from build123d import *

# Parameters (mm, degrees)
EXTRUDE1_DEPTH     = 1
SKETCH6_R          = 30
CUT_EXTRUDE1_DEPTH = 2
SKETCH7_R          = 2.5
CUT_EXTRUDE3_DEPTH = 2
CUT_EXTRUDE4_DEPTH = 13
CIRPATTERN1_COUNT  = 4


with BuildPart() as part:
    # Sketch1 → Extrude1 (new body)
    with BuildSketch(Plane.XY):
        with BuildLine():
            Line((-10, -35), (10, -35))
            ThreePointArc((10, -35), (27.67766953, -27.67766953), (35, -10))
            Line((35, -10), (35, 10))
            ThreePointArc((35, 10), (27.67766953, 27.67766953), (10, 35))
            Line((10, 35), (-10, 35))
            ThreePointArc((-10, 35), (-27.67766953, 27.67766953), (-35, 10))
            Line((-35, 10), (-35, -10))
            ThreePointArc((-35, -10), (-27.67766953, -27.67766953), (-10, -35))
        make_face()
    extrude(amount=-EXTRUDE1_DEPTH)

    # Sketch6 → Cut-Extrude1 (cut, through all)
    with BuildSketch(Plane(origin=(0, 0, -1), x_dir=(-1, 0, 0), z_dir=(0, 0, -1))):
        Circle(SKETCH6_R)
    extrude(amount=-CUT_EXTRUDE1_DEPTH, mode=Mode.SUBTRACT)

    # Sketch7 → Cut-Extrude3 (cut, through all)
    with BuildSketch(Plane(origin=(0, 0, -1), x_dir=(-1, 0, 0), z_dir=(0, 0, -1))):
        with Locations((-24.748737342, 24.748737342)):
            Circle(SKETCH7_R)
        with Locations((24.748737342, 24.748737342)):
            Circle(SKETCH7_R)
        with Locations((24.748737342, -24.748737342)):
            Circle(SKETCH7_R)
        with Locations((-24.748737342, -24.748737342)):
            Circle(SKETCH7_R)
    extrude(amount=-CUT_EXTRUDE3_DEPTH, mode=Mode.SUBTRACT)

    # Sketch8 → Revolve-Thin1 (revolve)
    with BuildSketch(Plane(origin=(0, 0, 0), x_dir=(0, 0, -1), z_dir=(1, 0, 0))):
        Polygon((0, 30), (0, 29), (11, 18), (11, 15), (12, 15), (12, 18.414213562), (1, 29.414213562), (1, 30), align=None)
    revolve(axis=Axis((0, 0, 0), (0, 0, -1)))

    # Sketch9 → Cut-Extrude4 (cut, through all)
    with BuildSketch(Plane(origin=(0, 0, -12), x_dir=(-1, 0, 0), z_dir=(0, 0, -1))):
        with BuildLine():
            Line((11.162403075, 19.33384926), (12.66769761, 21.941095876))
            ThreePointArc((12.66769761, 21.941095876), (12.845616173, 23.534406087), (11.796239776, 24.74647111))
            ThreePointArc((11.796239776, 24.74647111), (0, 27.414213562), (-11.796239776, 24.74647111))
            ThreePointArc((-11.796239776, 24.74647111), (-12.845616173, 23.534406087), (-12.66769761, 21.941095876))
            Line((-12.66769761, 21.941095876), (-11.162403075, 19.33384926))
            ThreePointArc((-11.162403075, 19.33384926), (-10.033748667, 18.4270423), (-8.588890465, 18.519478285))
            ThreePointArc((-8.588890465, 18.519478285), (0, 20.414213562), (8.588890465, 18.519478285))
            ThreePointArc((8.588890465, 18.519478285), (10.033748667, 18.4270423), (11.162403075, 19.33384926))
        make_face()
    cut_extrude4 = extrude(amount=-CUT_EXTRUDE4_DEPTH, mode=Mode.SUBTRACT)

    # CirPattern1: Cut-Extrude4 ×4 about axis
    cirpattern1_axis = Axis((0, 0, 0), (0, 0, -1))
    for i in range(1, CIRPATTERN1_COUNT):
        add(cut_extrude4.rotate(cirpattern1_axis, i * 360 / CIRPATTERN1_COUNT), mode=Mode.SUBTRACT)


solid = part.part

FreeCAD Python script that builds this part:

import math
import FreeCAD as App
import Part
import Sketcher
Q = App.Units.Quantity

doc = App.newDocument("Part")
body = doc.addObject("PartDesign::Body", "Body")

# Sketch on XY plane
sketch1 = body.newObject("Sketcher::SketchObject", "Sketch")
sketch1.AttachmentSupport = (doc.getObject("XY_Plane"), [""])
sketch1.MapMode = "FlatFace"
sketch1.addGeometry([
    Part.LineSegment(App.Vector(-10, -35, 0), App.Vector(10, -35, 0)),  # 0
    Part.ArcOfCircle(Part.Circle(App.Vector(10, -10, 0), App.Vector(0, 0, 1), 25), math.radians(-90), math.radians(0)),  # 1
    Part.LineSegment(App.Vector(35, -10, 0), App.Vector(35, 10, 0)),  # 2
    Part.ArcOfCircle(Part.Circle(App.Vector(10, 10, 0), App.Vector(0, 0, 1), 25), math.radians(0), math.radians(90)),  # 3
    Part.LineSegment(App.Vector(10, 35, 0), App.Vector(-10, 35, 0)),  # 4
    Part.ArcOfCircle(Part.Circle(App.Vector(-10, 10, 0), App.Vector(0, 0, 1), 25), math.radians(90), math.radians(180)),  # 5
    Part.LineSegment(App.Vector(-35, 10, 0), App.Vector(-35, -10, 0)),  # 6
    Part.ArcOfCircle(Part.Circle(App.Vector(-10, -10, 0), App.Vector(0, 0, 1), 25), math.radians(180), math.radians(270)),  # 7
], False)
sketch1.addConstraint([
    Sketcher.Constraint("Tangent", 0, 2, 1, 1),
    Sketcher.Constraint("Tangent", 1, 2, 2, 1),
    Sketcher.Constraint("Tangent", 2, 2, 3, 1),
    Sketcher.Constraint("Tangent", 3, 2, 4, 1),
    Sketcher.Constraint("Tangent", 4, 2, 5, 1),
    Sketcher.Constraint("Tangent", 5, 2, 6, 1),
    Sketcher.Constraint("Tangent", 6, 2, 7, 1),
    Sketcher.Constraint("Tangent", 7, 2, 0, 1),
    Sketcher.Constraint("Horizontal", 0),
    Sketcher.Constraint("Vertical", 2),
    Sketcher.Constraint("Horizontal", 4),
    Sketcher.Constraint("Vertical", 6),
    Sketcher.Constraint("Equal", 1, 3),
    Sketcher.Constraint("Equal", 3, 5),
    Sketcher.Constraint("Equal", 5, 7),
    Sketcher.Constraint("Symmetric", 1, 3, 5, 3, -1, 1),
    Sketcher.Constraint("Equal", 4, 2),
    Sketcher.Constraint("Radius", 1, 25.0),
    Sketcher.Constraint("DistanceX", 0, 1, 0, 2, 20.0),
])
pad1 = body.newObject("PartDesign::Pad", "Pad")
pad1.Profile = sketch1
pad1.Length = 1
pad1.Reversed = True

# Sketch on XY plane
sketch2 = body.newObject("Sketcher::SketchObject", "Sketch001")
sketch2.AttachmentSupport = (doc.getObject("XY_Plane"), [""])
sketch2.MapMode = "FlatFace"
sketch2.AttachmentOffset = App.Placement(App.Vector(0, 0, -1), App.Rotation())
sketch2.addGeometry(Part.Circle(App.Vector(0, 0, 0), App.Vector(0, 0, 1), 30), False)
sketch2.addConstraint([
    Sketcher.Constraint("Coincident", 0, 3, -1, 1),
    Sketcher.Constraint("Diameter", 0, 60.0),
])
pocket1 = body.newObject("PartDesign::Pocket", "Pocket")
pocket1.Profile = sketch2
pocket1.Type = "ThroughAll"
pocket1.Reversed = True

# Sketch on XY plane
sketch3 = body.newObject("Sketcher::SketchObject", "Sketch002")
sketch3.AttachmentSupport = (doc.getObject("XY_Plane"), [""])
sketch3.MapMode = "FlatFace"
sketch3.AttachmentOffset = App.Placement(App.Vector(0, 0, -1), App.Rotation())
sketch3.addGeometry([
    Part.Circle(App.Vector(24.7, 24.7, 0), App.Vector(0, 0, 1), 2.5),
    Part.Circle(App.Vector(-24.7, 24.7, 0), App.Vector(0, 0, 1), 2.5),
    Part.Circle(App.Vector(-24.7, -24.7, 0), App.Vector(0, 0, 1), 2.5),
    Part.Circle(App.Vector(24.7, -24.7, 0), App.Vector(0, 0, 1), 2.5),
], False)
sketch3.addConstraint([
    Sketcher.Constraint("Equal", 0, 1),
    Sketcher.Constraint("Equal", 1, 2),
    Sketcher.Constraint("Equal", 2, 3),
    Sketcher.Constraint("Symmetric", 0, 3, 2, 3, -1, 1),
    Sketcher.Constraint("Symmetric", 1, 3, 3, 3, -1, 1),
    Sketcher.Constraint("Symmetric", 0, 3, 1, 3, -2),
    Sketcher.Constraint("Diameter", 0, 5.0),
    Sketcher.Constraint("DistanceX", -1, 1, 0, 3, 24.748737),
    Sketcher.Constraint("DistanceY", -1, 1, 0, 3, 24.748737),
])
pocket2 = body.newObject("PartDesign::Pocket", "Pocket001")
pocket2.Profile = sketch3
pocket2.Type = "ThroughAll"
pocket2.Reversed = True

# Sketch on YZ plane
sketch4 = body.newObject("Sketcher::SketchObject", "Sketch003")
sketch4.AttachmentSupport = (doc.getObject("YZ_Plane"), [""])
sketch4.MapMode = "FlatFace"
sketch4.addGeometry([
    Part.LineSegment(App.Vector(30, 0, 0), App.Vector(29, 0, 0)),  # 0
    Part.LineSegment(App.Vector(29, 0, 0), App.Vector(18, -11, 0)),  # 1
    Part.LineSegment(App.Vector(18, -11, 0), App.Vector(15, -11, 0)),  # 2
    Part.LineSegment(App.Vector(15, -11, 0), App.Vector(15, -12, 0)),  # 3
    Part.LineSegment(App.Vector(15, -12, 0), App.Vector(18.4, -12, 0)),  # 4
    Part.LineSegment(App.Vector(18.4, -12, 0), App.Vector(29.4, -1, 0)),  # 5
    Part.LineSegment(App.Vector(29.4, -1, 0), App.Vector(30, -1, 0)),  # 6
    Part.LineSegment(App.Vector(30, -1, 0), App.Vector(30, 0, 0)),  # 7
], False)
sketch4.addConstraint([
    Sketcher.Constraint("Coincident", 0, 2, 1, 1),
    Sketcher.Constraint("Coincident", 1, 2, 2, 1),
    Sketcher.Constraint("Coincident", 2, 2, 3, 1),
    Sketcher.Constraint("Coincident", 3, 2, 4, 1),
    Sketcher.Constraint("Coincident", 4, 2, 5, 1),
    Sketcher.Constraint("Coincident", 5, 2, 6, 1),
    Sketcher.Constraint("Coincident", 6, 2, 7, 1),
    Sketcher.Constraint("Coincident", 7, 2, 0, 1),
    Sketcher.Constraint("Horizontal", 0),
    Sketcher.Constraint("Horizontal", 2),
    Sketcher.Constraint("Vertical", 3),
    Sketcher.Constraint("Horizontal", 4),
    Sketcher.Constraint("Horizontal", 6),
    Sketcher.Constraint("Vertical", 7),
    Sketcher.Constraint("PointOnObject", 0, 2, -1),
    Sketcher.Constraint("Parallel", 1, 5),
    Sketcher.Constraint("Equal", 0, 3),
    Sketcher.Constraint("Equal", 3, 7),
    Sketcher.Constraint("DistanceX", 0, 2, 0, 1, 1.0),
    Sketcher.Constraint("DistanceX", 2, 2, 2, 1, 3.0),
    Sketcher.Constraint("Angle", 1, Q("-135 deg")),
    Sketcher.Constraint("DistanceX", -1, 1, 0, 2, 29.0),
    Sketcher.Constraint("DistanceX", -1, 1, 1, 2, 18.0),
    Sketcher.Constraint("DistanceX", 4, 1, 4, 2, 3.414214),
])
revolution = body.newObject("PartDesign::Revolution", "Revolution")
revolution.Profile = sketch4
revolution.ReferenceAxis = (sketch4, ["V_Axis"])
revolution.Angle = 360

# Sketch on XY plane
sketch5 = body.newObject("Sketcher::SketchObject", "Sketch004")
sketch5.AttachmentSupport = (doc.getObject("XY_Plane"), [""])
sketch5.MapMode = "FlatFace"
sketch5.AttachmentOffset = App.Placement(App.Vector(0, 0, -12), App.Rotation())
sketch5.addGeometry([
    Part.LineSegment(App.Vector(-11.2, 19.3, 0), App.Vector(-12.7, 21.9, 0)),  # 0
    Part.ArcOfCircle(Part.Circle(App.Vector(-10.9, 22.9, 0), App.Vector(0, 0, 1), 2), math.radians(115), math.radians(210)),  # 1
    Part.ArcOfCircle(Part.Circle(App.Vector(0, 0, 0), App.Vector(0, 0, 1), 27.4), math.radians(65), math.radians(115)),  # 2
    Part.ArcOfCircle(Part.Circle(App.Vector(10.9, 22.9, 0), App.Vector(0, 0, 1), 2), math.radians(-30), math.radians(65)),  # 3
    Part.LineSegment(App.Vector(12.7, 21.9, 0), App.Vector(11.2, 19.3, 0)),  # 4
    Part.ArcOfCircle(Part.Circle(App.Vector(9.4, 20.3, 0), App.Vector(0, 0, 1), 2), math.radians(-115), math.radians(-30)),  # 5
    Part.ArcOfCircle(Part.Circle(App.Vector(0, 0, 0), App.Vector(0, 0, 1), 20.4), math.radians(65), math.radians(115)),  # 6
    Part.ArcOfCircle(Part.Circle(App.Vector(-9.4, 20.3, 0), App.Vector(0, 0, 1), 2), math.radians(-150), math.radians(-65)),  # 7
], False)
sketch5.addConstraint([
    Sketcher.Constraint("Tangent", 0, 2, 1, 2),
    Sketcher.Constraint("Tangent", 1, 1, 2, 2),
    Sketcher.Constraint("Tangent", 2, 1, 3, 2),
    Sketcher.Constraint("Tangent", 3, 1, 4, 1),
    Sketcher.Constraint("Tangent", 4, 2, 5, 2),
    Sketcher.Constraint("Tangent", 5, 1, 6, 1),
    Sketcher.Constraint("Tangent", 6, 2, 7, 2),
    Sketcher.Constraint("Tangent", 7, 1, 0, 1),
    Sketcher.Constraint("Coincident", 2, 3, -1, 1),
    Sketcher.Constraint("Coincident", 6, 3, -1, 1),
    Sketcher.Constraint("Equal", 1, 3),
    Sketcher.Constraint("Equal", 3, 5),
    Sketcher.Constraint("Equal", 5, 7),
    Sketcher.Constraint("Symmetric", 0, 2, 3, 1, -2),
    Sketcher.Constraint("Radius", 1, 2.0),
    Sketcher.Constraint("Angle", 0, Q("120 deg")),
    Sketcher.Constraint("Radius", 2, 27.414214),
    Sketcher.Constraint("Radius", 6, 20.414214),
    Sketcher.Constraint("DistanceX", 1, 3, 5, 3, 20.365999),
])
pocket3 = body.newObject("PartDesign::Pocket", "Pocket002")
pocket3.Profile = sketch5
pocket3.Type = "ThroughAll"
pocket3.Reversed = True
doc.recompute()

polarpattern = body.newObject("PartDesign::PolarPattern", "PolarPattern")
polarpattern.Originals = [pocket3]
polarpattern.Axis = (doc.getObject("Z_Axis"), [""])
polarpattern.Angle = 360
polarpattern.Occurrences = 4
body.Tip = polarpattern

doc.recompute()
